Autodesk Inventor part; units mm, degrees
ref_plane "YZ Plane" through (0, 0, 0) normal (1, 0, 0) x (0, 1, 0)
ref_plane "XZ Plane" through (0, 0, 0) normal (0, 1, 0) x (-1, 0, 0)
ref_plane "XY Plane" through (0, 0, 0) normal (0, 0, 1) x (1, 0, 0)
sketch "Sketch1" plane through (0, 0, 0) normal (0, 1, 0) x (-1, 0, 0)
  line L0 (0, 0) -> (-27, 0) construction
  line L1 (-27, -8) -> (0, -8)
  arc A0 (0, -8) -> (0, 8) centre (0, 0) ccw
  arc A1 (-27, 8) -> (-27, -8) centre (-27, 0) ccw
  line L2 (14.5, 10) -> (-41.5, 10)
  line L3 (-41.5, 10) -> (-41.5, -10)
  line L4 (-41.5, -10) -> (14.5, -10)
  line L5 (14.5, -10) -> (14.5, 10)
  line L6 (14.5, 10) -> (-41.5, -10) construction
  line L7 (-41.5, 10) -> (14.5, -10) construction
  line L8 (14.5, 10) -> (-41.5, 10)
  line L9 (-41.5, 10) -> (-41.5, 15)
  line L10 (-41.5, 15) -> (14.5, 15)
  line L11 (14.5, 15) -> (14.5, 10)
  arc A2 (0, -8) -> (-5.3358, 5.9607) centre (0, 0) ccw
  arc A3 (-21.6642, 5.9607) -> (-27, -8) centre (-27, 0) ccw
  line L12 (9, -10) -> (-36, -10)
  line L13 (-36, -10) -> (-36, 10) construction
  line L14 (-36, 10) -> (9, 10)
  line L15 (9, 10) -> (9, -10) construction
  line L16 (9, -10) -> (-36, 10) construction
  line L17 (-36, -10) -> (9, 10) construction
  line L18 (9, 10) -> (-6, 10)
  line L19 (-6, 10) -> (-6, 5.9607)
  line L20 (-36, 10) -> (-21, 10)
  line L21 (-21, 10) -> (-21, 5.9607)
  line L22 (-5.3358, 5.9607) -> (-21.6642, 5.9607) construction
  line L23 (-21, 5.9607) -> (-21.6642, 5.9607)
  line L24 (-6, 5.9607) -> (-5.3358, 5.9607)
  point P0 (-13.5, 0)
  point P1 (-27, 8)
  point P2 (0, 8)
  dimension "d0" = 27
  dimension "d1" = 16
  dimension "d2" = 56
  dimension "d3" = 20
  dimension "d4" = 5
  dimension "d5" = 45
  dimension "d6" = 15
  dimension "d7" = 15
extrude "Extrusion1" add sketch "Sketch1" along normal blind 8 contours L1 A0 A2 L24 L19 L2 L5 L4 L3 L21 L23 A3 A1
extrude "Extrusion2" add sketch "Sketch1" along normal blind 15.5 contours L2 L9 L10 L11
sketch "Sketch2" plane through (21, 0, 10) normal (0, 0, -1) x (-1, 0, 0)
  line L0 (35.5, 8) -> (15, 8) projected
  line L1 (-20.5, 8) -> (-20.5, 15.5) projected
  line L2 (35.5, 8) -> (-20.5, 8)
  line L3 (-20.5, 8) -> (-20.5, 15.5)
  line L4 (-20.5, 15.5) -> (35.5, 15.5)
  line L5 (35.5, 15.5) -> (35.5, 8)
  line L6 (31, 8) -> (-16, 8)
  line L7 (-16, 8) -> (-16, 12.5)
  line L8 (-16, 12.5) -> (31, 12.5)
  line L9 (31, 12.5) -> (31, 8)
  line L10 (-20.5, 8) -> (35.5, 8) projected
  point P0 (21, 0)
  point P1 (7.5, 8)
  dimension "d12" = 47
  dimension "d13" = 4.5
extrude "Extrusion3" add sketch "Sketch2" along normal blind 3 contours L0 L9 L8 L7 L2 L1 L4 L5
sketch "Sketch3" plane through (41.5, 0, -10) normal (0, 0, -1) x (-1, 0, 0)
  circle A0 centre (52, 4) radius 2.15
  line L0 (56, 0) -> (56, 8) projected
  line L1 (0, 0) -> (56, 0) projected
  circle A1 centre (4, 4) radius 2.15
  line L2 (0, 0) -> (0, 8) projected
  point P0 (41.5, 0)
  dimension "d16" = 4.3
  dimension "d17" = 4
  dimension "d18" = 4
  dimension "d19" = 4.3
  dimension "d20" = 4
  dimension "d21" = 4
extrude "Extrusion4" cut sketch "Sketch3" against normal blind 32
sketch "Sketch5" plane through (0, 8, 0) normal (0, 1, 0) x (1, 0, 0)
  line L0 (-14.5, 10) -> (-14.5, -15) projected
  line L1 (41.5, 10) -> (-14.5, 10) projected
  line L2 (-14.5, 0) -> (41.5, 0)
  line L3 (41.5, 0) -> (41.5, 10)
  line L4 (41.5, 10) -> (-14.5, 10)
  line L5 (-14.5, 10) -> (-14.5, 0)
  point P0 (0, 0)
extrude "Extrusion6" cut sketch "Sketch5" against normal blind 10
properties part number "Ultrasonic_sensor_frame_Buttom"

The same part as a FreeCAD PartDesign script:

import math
import FreeCAD as App
import Part
import Sketcher
from FreeCAD import Vector

doc = App.newDocument("Part")
body = doc.addObject("PartDesign::Body", "Body")

# Sketch on XZ plane
sketch1 = body.newObject("Sketcher::SketchObject", "Sketch")
sketch1.AttachmentSupport = (doc.getObject("XZ_Plane"), [""])
sketch1.MapMode = "FlatFace"
sketch1.addGeometry(Part.LineSegment(Vector(0, -8, 0), Vector(27, -8, 0)), False)
sketch1.addGeometry(Part.ArcOfCircle(Part.Circle(Vector(27, 0, 0), Vector(0, 0, 1), 8), math.radians(-90), math.radians(90)), False)
sketch1.addGeometry(Part.ArcOfCircle(Part.Circle(Vector(27, 0, 0), Vector(0, 0, 1), 8.000044), math.radians(90), math.radians(131.833738)), False)
sketch1.addGeometry(Part.LineSegment(Vector(21.6642, 5.9607, 0), Vector(21, 5.9607, 0)), False)
sketch1.addGeometry(Part.LineSegment(Vector(21, 5.9607, 0), Vector(21, 10, 0)), False)
sketch1.addGeometry(Part.LineSegment(Vector(21, 10, 0), Vector(41.5, 10, 0)), False)
sketch1.addGeometry(Part.LineSegment(Vector(41.5, 10, 0), Vector(41.5, -10, 0)), False)
sketch1.addGeometry(Part.LineSegment(Vector(41.5, -10, 0), Vector(-14.5, -10, 0)), False)
sketch1.addGeometry(Part.LineSegment(Vector(-14.5, -10, 0), Vector(-14.5, 10, 0)), False)
sketch1.addGeometry(Part.LineSegment(Vector(-14.5, 10, 0), Vector(6, 10, 0)), False)
sketch1.addGeometry(Part.LineSegment(Vector(6, 10, 0), Vector(6, 5.9607, 0)), False)
sketch1.addGeometry(Part.LineSegment(Vector(6, 5.9607, 0), Vector(5.3358, 5.9607, 0)), False)
sketch1.addGeometry(Part.ArcOfCircle(Part.Circle(Vector(0, 0, 0), Vector(0, 0, 1), 8), math.radians(48.166262), math.radians(90)), False)
sketch1.addGeometry(Part.ArcOfCircle(Part.Circle(Vector(0, 0, 0), Vector(0, 0, 1), 8), math.radians(90), math.radians(270)), False)
sketch1.addConstraint(Sketcher.Constraint("Tangent", 0, 2, 1, 1))
sketch1.addConstraint(Sketcher.Constraint("Tangent", 1, 2, 2, 1))
sketch1.addConstraint(Sketcher.Constraint("Coincident", 2, 2, 3, 1))
sketch1.addConstraint(Sketcher.Constraint("Coincident", 3, 2, 4, 1))
sketch1.addConstraint(Sketcher.Constraint("Coincident", 4, 2, 5, 1))
sketch1.addConstraint(Sketcher.Constraint("Coincident", 5, 2, 6, 1))
sketch1.addConstraint(Sketcher.Constraint("Coincident", 6, 2, 7, 1))
sketch1.addConstraint(Sketcher.Constraint("Coincident", 7, 2, 8, 1))
sketch1.addConstraint(Sketcher.Constraint("Coincident", 8, 2, 9, 1))
sketch1.addConstraint(Sketcher.Constraint("Coincident", 9, 2, 10, 1))
sketch1.addConstraint(Sketcher.Constraint("Coincident", 10, 2, 11, 1))
sketch1.addConstraint(Sketcher.Constraint("Coincident", 11, 2, 12, 1))
sketch1.addConstraint(Sketcher.Constraint("Tangent", 12, 2, 13, 1))
sketch1.addConstraint(Sketcher.Constraint("Tangent", 13, 2, 0, 1))
sketch1.addConstraint(Sketcher.Constraint("Horizontal", 0))
sketch1.addConstraint(Sketcher.Constraint("Horizontal", 3))
sketch1.addConstraint(Sketcher.Constraint("Vertical", 4))
sketch1.addConstraint(Sketcher.Constraint("Horizontal", 5))
sketch1.addConstraint(Sketcher.Constraint("Vertical", 6))
sketch1.addConstraint(Sketcher.Constraint("Horizontal", 7))
sketch1.addConstraint(Sketcher.Constraint("Vertical", 8))
sketch1.addConstraint(Sketcher.Constraint("Horizontal", 9))
sketch1.addConstraint(Sketcher.Constraint("Vertical", 10))
sketch1.addConstraint(Sketcher.Constraint("Horizontal", 11))
sketch1.addConstraint(Sketcher.Constraint("Coincident", 12, 3, -1, 1))
sketch1.addConstraint(Sketcher.Constraint("Equal", 1, 2))
sketch1.addConstraint(Sketcher.Constraint("Equal", 2, 12))
sketch1.addConstraint(Sketcher.Constraint("Equal", 12, 13))
sketch1.addConstraint(Sketcher.Constraint("PointOnObject", 12, 2, -2))
sketch1.addConstraint(Sketcher.Constraint("Horizontal", 5, 2, 8, 2))
sketch1.addConstraint(Sketcher.Constraint("Horizontal", 3, 2, 10, 2))
sketch1.addConstraint(Sketcher.Constraint("Vertical", 0, 2, 1, 2))
sketch1.addConstraint(Sketcher.Constraint("Equal", 5, 9))
sketch1.addConstraint(Sketcher.Constraint("Equal", 3, 11))
sketch1.addConstraint(Sketcher.Constraint("Radius", 1, 8.0))
sketch1.addConstraint(Sketcher.Constraint("DistanceX", 0, 1, 0, 2, 27.0))
sketch1.addConstraint(Sketcher.Constraint("DistanceX", 7, 2, 7, 1, 56.0))
sketch1.addConstraint(Sketcher.Constraint("DistanceY", 6, 2, 6, 1, 20.0))
sketch1.addConstraint(Sketcher.Constraint("DistanceX", 9, 2, 4, 2, 15.0))
sketch1.addConstraint(Sketcher.Constraint("DistanceY", -1, 1, 4, 2, 10.0))
sketch1.addConstraint(Sketcher.Constraint("DistanceX", 3, 2, 3, 1, 0.6642))
pad1 = body.newObject("PartDesign::Pad", "Pad")
pad1.Profile = sketch1
pad1.Length = 8
pad1.Reversed = True

# Sketch on XZ plane
sketch2 = body.newObject("Sketcher::SketchObject", "Sketch001")
sketch2.AttachmentSupport = (doc.getObject("XZ_Plane"), [""])
sketch2.MapMode = "FlatFace"
sketch2.addGeometry(Part.LineSegment(Vector(41.5, 10, 0), Vector(-14.5, 10, 0)), False)
sketch2.addGeometry(Part.LineSegment(Vector(-14.5, 10, 0), Vector(-14.5, 15, 0)), False)
sketch2.addGeometry(Part.LineSegment(Vector(-14.5, 15, 0), Vector(41.5, 15, 0)), False)
sketch2.addGeometry(Part.LineSegment(Vector(41.5, 15, 0), Vector(41.5, 10, 0)), False)
sketch2.addConstraint(Sketcher.Constraint("Coincident", 0, 2, 1, 1))
sketch2.addConstraint(Sketcher.Constraint("Coincident", 1, 2, 2, 1))
sketch2.addConstraint(Sketcher.Constraint("Coincident", 2, 2, 3, 1))
sketch2.addConstraint(Sketcher.Constraint("Coincident", 3, 2, 0, 1))
sketch2.addConstraint(Sketcher.Constraint("Horizontal", 0))
sketch2.addConstraint(Sketcher.Constraint("Vertical", 1))
sketch2.addConstraint(Sketcher.Constraint("Horizontal", 2))
sketch2.addConstraint(Sketcher.Constraint("Vertical", 3))
sketch2.addConstraint(Sketcher.Constraint("DistanceX", 0, 2, 0, 1, 56.0))
sketch2.addConstraint(Sketcher.Constraint("DistanceY", 1, 1, 1, 2, 5.0))
sketch2.addConstraint(Sketcher.Constraint("DistanceY", -1, 1, 1, 2, 15.0))
sketch2.addConstraint(Sketcher.Constraint("DistanceX", 0, 2, -1, 1, 14.5))
pad2 = body.newObject("PartDesign::Pad", "Pad001")
pad2.Profile = sketch2
pad2.Length = 15.5
pad2.Reversed = True

# Sketch on XY plane
sketch3 = body.newObject("Sketcher::SketchObject", "Sketch002")
sketch3.AttachmentSupport = (doc.getObject("XY_Plane"), [""])
sketch3.MapMode = "FlatFace"
sketch3.AttachmentOffset = App.Placement(Vector(0, 0, 10), App.Rotation())
sketch3.addGeometry(Part.LineSegment(Vector(-10, 8, 0), Vector(-14.5, 8, 0)), False)
sketch3.addGeometry(Part.LineSegment(Vector(-14.5, 8, 0), Vector(-14.5, 15.5, 0)), False)
sketch3.addGeometry(Part.LineSegment(Vector(-14.5, 15.5, 0), Vector(41.5, 15.5, 0)), False)
sketch3.addGeometry(Part.LineSegment(Vector(41.5, 15.5, 0), Vector(41.5, 8, 0)), False)
sketch3.addGeometry(Part.LineSegment(Vector(41.5, 8, 0), Vector(37, 8, 0)), False)
sketch3.addGeometry(Part.LineSegment(Vector(37, 8, 0), Vector(37, 12.5, 0)), False)
sketch3.addGeometry(Part.LineSegment(Vector(37, 12.5, 0), Vector(-10, 12.5, 0)), False)
sketch3.addGeometry(Part.LineSegment(Vector(-10, 12.5, 0), Vector(-10, 8, 0)), False)
sketch3.addConstraint(Sketcher.Constraint("Coincident", 0, 2, 1, 1))
sketch3.addConstraint(Sketcher.Constraint("Coincident", 1, 2, 2, 1))
sketch3.addConstraint(Sketcher.Constraint("Coincident", 2, 2, 3, 1))
sketch3.addConstraint(Sketcher.Constraint("Coincident", 3, 2, 4, 1))
sketch3.addConstraint(Sketcher.Constraint("Coincident", 4, 2, 5, 1))
sketch3.addConstraint(Sketcher.Constraint("Coincident", 5, 2, 6, 1))
sketch3.addConstraint(Sketcher.Constraint("Coincident", 6, 2, 7, 1))
sketch3.addConstraint(Sketcher.Constraint("Coincident", 7, 2, 0, 1))
sketch3.addConstraint(Sketcher.Constraint("Horizontal", 0))
sketch3.addConstraint(Sketcher.Constraint("Vertical", 1))
sketch3.addConstraint(Sketcher.Constraint("Horizontal", 2))
sketch3.addConstraint(Sketcher.Constraint("Vertical", 3))
sketch3.addConstraint(Sketcher.Constraint("Horizontal", 4))
sketch3.addConstraint(Sketcher.Constraint("Vertical", 5))
sketch3.addConstraint(Sketcher.Constraint("Horizontal", 6))
sketch3.addConstraint(Sketcher.Constraint("Vertical", 7))
sketch3.addConstraint(Sketcher.Constraint("Horizontal", 0, 2, 3, 2))
sketch3.addConstraint(Sketcher.Constraint("Equal", 0, 4))
sketch3.addConstraint(Sketcher.Constraint("Equal", 4, 5))
sketch3.addConstraint(Sketcher.Constraint("DistanceX", 6, 2, 6, 1, 47.0))
sketch3.addConstraint(Sketcher.Constraint("DistanceX", 0, 2, 0, 1, 4.5))
sketch3.addConstraint(Sketcher.Constraint("DistanceY", 1, 1, 1, 2, 7.5))
sketch3.addConstraint(Sketcher.Constraint("DistanceY", -1, 1, 0, 2, 8.0))
sketch3.addConstraint(Sketcher.Constraint("DistanceX", -1, 1, 4, 2, 37.0))
pad3 = body.newObject("PartDesign::Pad", "Pad002")
pad3.Profile = sketch3
pad3.Length = 3
pad3.Reversed = True

# Sketch on XY plane
sketch4 = body.newObject("Sketcher::SketchObject", "Sketch003")
sketch4.AttachmentSupport = (doc.getObject("XY_Plane"), [""])
sketch4.MapMode = "FlatFace"
sketch4.AttachmentOffset = App.Placement(Vector(0, 0, -10), App.Rotation())
sketch4.addGeometry(Part.Circle(Vector(-10.5, 4, 0), Vector(0, 0, 1), 2.15), False)
sketch4.addGeometry(Part.Circle(Vector(37.5, 4, 0), Vector(0, 0, 1), 2.15), False)
sketch4.addConstraint(Sketcher.Constraint("Equal", 0, 1))
sketch4.addConstraint(Sketcher.Constraint("Horizontal", 0, 3, 1, 3))
sketch4.addConstraint(Sketcher.Constraint("Diameter", 0, 4.3))
sketch4.addConstraint(Sketcher.Constraint("DistanceY", -1, 1, 0, 3, 4.0))
sketch4.addConstraint(Sketcher.Constraint("DistanceX", 0, 3, 1, 3, 48.0))
sketch4.addConstraint(Sketcher.Constraint("DistanceX", 0, 3, -1, 1, 10.5))
pocket1 = body.newObject("PartDesign::Pocket", "Pocket")
pocket1.Profile = sketch4
pocket1.Length = 32
pocket1.Reversed = True

# Sketch on XZ plane
sketch5 = body.newObject("Sketcher::SketchObject", "Sketch004")
sketch5.AttachmentSupport = (doc.getObject("XZ_Plane"), [""])
sketch5.MapMode = "FlatFace"
sketch5.AttachmentOffset = App.Placement(Vector(0, 0, -8), App.Rotation())
sketch5.addGeometry(Part.LineSegment(Vector(41.5, -10, 0), Vector(-14.5, -10, 0)), False)
sketch5.addGeometry(Part.LineSegment(Vector(-14.5, -10, 0), Vector(-14.5, 0, 0)), False)
sketch5.addGeometry(Part.LineSegment(Vector(-14.5, 0, 0), Vector(41.5, 0, 0)), False)
sketch5.addGeometry(Part.LineSegment(Vector(41.5, 0, 0), Vector(41.5, -10, 0)), False)
sketch5.addConstraint(Sketcher.Constraint("Coincident", 0, 2, 1, 1))
sketch5.addConstraint(Sketcher.Constraint("Coincident", 1, 2, 2, 1))
sketch5.addConstraint(Sketcher.Constraint("Coincident", 2, 2, 3, 1))
sketch5.addConstraint(Sketcher.Constraint("Coincident", 3, 2, 0, 1))
sketch5.addConstraint(Sketcher.Constraint("Horizontal", 0))
sketch5.addConstraint(Sketcher.Constraint("Vertical", 1))
sketch5.addConstraint(Sketcher.Constraint("Horizontal", 2))
sketch5.addConstraint(Sketcher.Constraint("Vertical", 3))
sketch5.addConstraint(Sketcher.Constraint("PointOnObject", 1, 2, -1))
sketch5.addConstraint(Sketcher.Constraint("DistanceX", 0, 2, 0, 1, 56.0))
sketch5.addConstraint(Sketcher.Constraint("DistanceY", 1, 1, 1, 2, 10.0))
sketch5.addConstraint(Sketcher.Constraint("DistanceX", 0, 2, -1, 1, 14.5))
pocket2 = body.newObject("PartDesign::Pocket", "Pocket001")
pocket2.Profile = sketch5
pocket2.Length = 10
pocket2.Reversed = True

doc.recompute()
